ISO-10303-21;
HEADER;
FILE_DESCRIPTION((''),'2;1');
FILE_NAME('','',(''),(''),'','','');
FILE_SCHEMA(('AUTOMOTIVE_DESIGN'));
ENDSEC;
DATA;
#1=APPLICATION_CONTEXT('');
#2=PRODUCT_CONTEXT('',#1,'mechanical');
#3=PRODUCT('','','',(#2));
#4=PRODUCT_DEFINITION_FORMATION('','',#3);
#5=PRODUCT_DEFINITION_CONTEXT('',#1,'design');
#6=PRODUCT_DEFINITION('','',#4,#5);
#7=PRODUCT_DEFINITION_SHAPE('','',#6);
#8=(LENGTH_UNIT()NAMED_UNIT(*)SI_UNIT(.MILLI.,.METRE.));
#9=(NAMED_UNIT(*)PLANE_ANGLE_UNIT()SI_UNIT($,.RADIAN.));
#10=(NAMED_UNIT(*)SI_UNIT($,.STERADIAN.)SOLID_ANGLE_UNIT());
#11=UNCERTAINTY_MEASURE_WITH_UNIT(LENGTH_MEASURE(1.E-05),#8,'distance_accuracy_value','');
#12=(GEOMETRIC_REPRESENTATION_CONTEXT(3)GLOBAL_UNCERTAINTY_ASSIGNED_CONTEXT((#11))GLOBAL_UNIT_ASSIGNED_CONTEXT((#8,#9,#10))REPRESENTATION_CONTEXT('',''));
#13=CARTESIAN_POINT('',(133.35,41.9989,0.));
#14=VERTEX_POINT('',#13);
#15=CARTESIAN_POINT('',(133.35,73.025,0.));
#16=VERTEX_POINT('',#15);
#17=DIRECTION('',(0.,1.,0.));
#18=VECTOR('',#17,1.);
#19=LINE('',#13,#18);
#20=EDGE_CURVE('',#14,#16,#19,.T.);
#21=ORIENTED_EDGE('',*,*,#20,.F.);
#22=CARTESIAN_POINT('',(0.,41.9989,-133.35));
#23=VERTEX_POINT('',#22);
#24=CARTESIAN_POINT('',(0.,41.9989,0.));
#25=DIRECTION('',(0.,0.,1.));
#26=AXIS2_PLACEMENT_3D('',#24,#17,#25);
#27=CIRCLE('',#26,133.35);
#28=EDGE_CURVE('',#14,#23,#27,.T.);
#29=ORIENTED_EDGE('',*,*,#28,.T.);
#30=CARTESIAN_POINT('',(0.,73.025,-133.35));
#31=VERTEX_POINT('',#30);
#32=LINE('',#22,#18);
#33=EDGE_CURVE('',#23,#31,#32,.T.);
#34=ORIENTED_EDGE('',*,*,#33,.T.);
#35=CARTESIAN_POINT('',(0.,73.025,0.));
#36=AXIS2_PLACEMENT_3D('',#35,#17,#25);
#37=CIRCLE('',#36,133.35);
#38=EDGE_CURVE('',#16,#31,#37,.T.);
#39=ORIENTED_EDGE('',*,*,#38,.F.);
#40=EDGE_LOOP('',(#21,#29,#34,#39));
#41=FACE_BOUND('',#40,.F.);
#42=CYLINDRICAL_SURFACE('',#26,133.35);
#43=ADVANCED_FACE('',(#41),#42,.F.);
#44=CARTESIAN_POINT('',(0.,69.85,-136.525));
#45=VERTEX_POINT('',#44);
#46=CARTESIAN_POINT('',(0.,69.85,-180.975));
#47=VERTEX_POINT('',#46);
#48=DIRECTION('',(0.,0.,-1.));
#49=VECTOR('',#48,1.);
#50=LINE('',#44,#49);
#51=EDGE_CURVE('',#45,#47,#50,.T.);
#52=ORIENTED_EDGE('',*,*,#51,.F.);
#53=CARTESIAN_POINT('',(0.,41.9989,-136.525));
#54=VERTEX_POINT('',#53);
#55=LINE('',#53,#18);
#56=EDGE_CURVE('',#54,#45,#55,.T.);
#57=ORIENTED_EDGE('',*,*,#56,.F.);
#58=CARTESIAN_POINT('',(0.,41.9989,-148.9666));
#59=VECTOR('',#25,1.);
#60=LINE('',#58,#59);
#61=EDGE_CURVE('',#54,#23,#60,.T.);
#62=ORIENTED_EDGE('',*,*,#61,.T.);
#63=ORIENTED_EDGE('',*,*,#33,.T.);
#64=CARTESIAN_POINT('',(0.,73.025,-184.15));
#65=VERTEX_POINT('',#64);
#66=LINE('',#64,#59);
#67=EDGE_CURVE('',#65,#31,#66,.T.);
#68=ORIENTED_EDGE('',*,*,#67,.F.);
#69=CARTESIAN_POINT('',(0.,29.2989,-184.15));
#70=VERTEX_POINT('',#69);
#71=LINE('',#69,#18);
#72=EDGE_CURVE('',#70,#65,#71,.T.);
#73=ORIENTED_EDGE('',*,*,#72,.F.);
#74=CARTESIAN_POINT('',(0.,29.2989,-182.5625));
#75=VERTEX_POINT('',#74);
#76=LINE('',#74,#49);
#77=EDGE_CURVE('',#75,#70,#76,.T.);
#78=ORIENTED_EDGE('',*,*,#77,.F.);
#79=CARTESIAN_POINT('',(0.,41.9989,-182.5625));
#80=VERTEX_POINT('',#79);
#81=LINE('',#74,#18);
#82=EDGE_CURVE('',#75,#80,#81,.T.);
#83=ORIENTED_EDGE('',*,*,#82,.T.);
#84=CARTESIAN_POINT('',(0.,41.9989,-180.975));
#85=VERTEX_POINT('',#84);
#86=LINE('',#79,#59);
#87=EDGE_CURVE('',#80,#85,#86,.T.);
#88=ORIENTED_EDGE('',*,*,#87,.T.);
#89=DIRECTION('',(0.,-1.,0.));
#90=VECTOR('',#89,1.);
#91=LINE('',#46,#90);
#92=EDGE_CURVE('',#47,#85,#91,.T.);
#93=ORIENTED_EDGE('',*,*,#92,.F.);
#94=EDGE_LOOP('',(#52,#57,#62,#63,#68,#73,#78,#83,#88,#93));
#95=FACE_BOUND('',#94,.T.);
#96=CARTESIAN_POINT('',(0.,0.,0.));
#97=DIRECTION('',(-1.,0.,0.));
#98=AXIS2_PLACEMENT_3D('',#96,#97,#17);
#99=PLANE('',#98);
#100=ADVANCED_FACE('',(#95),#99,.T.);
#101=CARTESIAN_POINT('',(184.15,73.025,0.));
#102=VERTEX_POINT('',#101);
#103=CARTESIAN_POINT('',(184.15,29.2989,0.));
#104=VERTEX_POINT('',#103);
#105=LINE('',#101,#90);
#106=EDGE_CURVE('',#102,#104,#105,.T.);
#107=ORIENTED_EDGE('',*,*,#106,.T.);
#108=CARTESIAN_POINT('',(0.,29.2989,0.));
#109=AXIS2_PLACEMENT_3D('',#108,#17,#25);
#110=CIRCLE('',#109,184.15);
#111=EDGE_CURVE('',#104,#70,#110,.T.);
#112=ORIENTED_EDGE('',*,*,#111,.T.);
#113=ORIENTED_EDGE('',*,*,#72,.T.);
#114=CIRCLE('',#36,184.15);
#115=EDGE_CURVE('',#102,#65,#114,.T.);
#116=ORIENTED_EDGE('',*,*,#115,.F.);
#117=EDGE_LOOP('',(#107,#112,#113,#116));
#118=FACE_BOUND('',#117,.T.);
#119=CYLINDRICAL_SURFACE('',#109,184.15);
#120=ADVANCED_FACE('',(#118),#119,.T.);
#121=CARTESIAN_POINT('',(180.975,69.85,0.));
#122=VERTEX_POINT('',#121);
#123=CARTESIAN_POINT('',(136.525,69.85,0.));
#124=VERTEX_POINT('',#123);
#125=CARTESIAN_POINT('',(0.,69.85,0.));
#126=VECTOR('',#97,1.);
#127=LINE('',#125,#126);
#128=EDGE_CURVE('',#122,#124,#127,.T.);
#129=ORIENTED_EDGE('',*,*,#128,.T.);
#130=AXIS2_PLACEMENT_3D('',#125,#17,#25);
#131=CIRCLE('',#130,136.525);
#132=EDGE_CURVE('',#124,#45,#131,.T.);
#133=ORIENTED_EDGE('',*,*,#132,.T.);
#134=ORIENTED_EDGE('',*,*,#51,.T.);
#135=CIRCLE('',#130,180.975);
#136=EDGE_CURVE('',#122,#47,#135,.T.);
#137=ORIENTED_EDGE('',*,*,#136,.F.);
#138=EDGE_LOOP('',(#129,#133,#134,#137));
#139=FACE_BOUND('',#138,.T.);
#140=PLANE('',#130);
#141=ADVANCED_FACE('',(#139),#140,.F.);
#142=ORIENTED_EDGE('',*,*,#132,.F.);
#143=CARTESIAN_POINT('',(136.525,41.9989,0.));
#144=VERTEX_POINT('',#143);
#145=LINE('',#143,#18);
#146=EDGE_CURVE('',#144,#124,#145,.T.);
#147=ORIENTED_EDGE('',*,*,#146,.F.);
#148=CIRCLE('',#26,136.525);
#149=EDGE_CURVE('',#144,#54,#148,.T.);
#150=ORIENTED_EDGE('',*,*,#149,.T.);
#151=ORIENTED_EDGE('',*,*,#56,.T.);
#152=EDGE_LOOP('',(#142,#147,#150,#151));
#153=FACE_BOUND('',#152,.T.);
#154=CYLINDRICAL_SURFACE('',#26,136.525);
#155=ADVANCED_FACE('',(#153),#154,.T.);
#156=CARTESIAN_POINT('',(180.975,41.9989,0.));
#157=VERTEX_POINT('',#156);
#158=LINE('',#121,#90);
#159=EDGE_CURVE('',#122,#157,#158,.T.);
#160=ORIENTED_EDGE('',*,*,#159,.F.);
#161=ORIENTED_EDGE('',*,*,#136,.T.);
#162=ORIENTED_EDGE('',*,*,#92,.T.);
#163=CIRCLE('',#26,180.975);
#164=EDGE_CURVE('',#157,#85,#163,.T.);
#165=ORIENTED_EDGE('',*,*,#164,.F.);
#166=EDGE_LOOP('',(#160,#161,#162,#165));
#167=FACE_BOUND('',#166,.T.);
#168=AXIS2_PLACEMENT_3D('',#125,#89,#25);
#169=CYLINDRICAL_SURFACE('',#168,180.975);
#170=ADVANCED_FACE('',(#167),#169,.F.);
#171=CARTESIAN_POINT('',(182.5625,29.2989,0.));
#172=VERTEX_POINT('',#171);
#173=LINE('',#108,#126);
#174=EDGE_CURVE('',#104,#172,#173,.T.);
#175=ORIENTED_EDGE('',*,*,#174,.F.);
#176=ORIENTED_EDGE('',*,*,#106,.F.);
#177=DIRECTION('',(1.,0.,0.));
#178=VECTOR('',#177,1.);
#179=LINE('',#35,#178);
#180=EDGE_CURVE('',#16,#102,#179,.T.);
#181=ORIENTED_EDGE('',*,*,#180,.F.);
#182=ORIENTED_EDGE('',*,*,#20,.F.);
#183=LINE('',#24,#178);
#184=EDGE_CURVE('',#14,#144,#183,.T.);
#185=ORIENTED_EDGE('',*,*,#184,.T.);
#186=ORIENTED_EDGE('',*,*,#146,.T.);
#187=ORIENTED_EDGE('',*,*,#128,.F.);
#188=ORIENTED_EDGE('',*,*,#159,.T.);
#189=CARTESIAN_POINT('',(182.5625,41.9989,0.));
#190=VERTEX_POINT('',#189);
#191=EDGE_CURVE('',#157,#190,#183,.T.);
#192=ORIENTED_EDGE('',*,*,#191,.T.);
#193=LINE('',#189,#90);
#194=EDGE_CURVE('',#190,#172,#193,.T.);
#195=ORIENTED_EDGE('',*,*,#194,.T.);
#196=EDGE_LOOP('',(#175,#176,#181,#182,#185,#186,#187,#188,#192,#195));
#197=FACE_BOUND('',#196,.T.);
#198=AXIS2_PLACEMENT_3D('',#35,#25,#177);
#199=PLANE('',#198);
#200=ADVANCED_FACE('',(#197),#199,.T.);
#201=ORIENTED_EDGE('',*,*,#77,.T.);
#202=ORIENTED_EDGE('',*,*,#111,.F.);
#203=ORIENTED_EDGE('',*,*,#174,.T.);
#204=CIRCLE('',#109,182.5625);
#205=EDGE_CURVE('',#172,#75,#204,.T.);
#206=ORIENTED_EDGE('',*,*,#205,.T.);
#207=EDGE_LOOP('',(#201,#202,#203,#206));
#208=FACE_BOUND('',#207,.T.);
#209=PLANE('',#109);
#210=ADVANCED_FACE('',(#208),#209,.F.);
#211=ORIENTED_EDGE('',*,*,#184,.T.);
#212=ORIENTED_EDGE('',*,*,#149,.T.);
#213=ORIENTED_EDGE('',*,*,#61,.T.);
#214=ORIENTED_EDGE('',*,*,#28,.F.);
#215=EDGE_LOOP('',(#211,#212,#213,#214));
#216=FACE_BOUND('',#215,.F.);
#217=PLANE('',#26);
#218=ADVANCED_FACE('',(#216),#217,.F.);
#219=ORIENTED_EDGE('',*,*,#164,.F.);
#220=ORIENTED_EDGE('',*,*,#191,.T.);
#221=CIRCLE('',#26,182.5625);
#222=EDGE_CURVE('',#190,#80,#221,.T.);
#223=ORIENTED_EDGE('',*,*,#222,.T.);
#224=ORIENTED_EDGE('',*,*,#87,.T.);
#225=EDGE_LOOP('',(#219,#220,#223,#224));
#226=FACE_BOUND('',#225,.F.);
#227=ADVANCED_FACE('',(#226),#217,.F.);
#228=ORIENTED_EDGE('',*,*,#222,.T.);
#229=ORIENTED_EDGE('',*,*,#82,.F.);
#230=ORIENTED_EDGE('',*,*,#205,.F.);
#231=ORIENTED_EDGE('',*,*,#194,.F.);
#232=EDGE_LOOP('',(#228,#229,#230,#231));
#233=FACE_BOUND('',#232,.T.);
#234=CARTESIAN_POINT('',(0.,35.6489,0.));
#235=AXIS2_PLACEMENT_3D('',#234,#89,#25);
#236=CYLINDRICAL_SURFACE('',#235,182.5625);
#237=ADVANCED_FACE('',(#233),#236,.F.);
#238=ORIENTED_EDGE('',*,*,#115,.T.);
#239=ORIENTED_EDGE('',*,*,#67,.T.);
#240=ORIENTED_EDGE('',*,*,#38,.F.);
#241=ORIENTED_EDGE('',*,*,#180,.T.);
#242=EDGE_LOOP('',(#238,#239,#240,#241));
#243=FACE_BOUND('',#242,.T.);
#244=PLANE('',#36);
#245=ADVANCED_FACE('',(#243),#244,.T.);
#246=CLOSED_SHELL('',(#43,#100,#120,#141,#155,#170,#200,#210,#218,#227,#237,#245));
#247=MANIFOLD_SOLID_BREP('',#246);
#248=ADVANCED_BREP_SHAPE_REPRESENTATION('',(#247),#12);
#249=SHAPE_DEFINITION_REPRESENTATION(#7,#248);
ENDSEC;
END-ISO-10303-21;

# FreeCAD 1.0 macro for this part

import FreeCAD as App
import Part
import Sketcher

V = App.Vector
Q = App.Units.Quantity

doc = App.newDocument("Part")
body = doc.addObject("PartDesign::Body", "Body")

# Sketch on YZ plane
sketch1 = doc.addObject("Sketcher::SketchObject", "Sketch")
body.addObject(sketch1)
sketch1.AttachmentSupport = (doc.YZ_Plane, [""])
sketch1.MapMode = "FlatFace"
sketch1.addGeometry(Part.LineSegment(V(73, 184.2, 0), V(29.3, 184.2, 0)), False)
sketch1.addGeometry(Part.LineSegment(V(29.3, 184.2, 0), V(29.3, 182.6, 0)), False)
sketch1.addGeometry(Part.LineSegment(V(29.3, 182.6, 0), V(42, 182.6, 0)), False)
sketch1.addGeometry(Part.LineSegment(V(42, 182.6, 0), V(42, 181, 0)), False)
sketch1.addGeometry(Part.LineSegment(V(42, 181, 0), V(69.8, 181, 0)), False)
sketch1.addGeometry(Part.LineSegment(V(69.8, 181, 0), V(69.8, 136.5, 0)), False)
sketch1.addGeometry(Part.LineSegment(V(69.8, 136.5, 0), V(42, 136.5, 0)), False)
sketch1.addGeometry(Part.LineSegment(V(42, 136.5, 0), V(42, 133.3, 0)), False)
sketch1.addGeometry(Part.LineSegment(V(42, 133.3, 0), V(73, 133.3, 0)), False)
sketch1.addGeometry(Part.LineSegment(V(73, 133.3, 0), V(73, 184.2, 0)), False)
sketch1.addConstraint(Sketcher.Constraint("Coincident", 0, 2, 1, 1))
sketch1.addConstraint(Sketcher.Constraint("Coincident", 1, 2, 2, 1))
sketch1.addConstraint(Sketcher.Constraint("Coincident", 2, 2, 3, 1))
sketch1.addConstraint(Sketcher.Constraint("Coincident", 3, 2, 4, 1))
sketch1.addConstraint(Sketcher.Constraint("Coincident", 4, 2, 5, 1))
sketch1.addConstraint(Sketcher.Constraint("Coincident", 5, 2, 6, 1))
sketch1.addConstraint(Sketcher.Constraint("Coincident", 6, 2, 7, 1))
sketch1.addConstraint(Sketcher.Constraint("Coincident", 7, 2, 8, 1))
sketch1.addConstraint(Sketcher.Constraint("Coincident", 8, 2, 9, 1))
sketch1.addConstraint(Sketcher.Constraint("Coincident", 9, 2, 0, 1))
sketch1.addConstraint(Sketcher.Constraint("Horizontal", 0))
sketch1.addConstraint(Sketcher.Constraint("Vertical", 1))
sketch1.addConstraint(Sketcher.Constraint("Horizontal", 2))
sketch1.addConstraint(Sketcher.Constraint("Vertical", 3))
sketch1.addConstraint(Sketcher.Constraint("Horizontal", 4))
sketch1.addConstraint(Sketcher.Constraint("Vertical", 5))
sketch1.addConstraint(Sketcher.Constraint("Horizontal", 6))
sketch1.addConstraint(Sketcher.Constraint("Vertical", 7))
sketch1.addConstraint(Sketcher.Constraint("Horizontal", 8))
sketch1.addConstraint(Sketcher.Constraint("Vertical", 9))
sketch1.addConstraint(Sketcher.Constraint("Vertical", 3, 2, 6, 2))
sketch1.addConstraint(Sketcher.Constraint("Equal", 1, 3))
sketch1.addConstraint(Sketcher.Constraint("DistanceY", 9, 1, 9, 2, Q("2 in")))
sketch1.addConstraint(Sketcher.Constraint("DistanceX", 2, 1, 2, 2, Q("0.5 in")))
sketch1.addConstraint(Sketcher.Constraint("DistanceY", 1, 2, 1, 1, Q("0.0625 in")))
sketch1.addConstraint(Sketcher.Constraint("DistanceY", 7, 2, 7, 1, Q("0.125 in")))
sketch1.addConstraint(Sketcher.Constraint("DistanceY", -1, 1, 7, 2, Q("5.25 in")))
sketch1.addConstraint(Sketcher.Constraint("DistanceX", -1, 1, 8, 2, Q("2.875 in")))
sketch1.addConstraint(Sketcher.Constraint("DistanceX", 5, 2, 8, 2, Q("0.125 in")))
sketch1.addConstraint(Sketcher.Constraint("DistanceX", 0, 2, 0, 1, Q("1.7215 in")))
revolution = doc.addObject("PartDesign::Revolution", "Revolution")
body.addObject(revolution)
revolution.Profile = sketch1
revolution.ReferenceAxis = (sketch1, ["H_Axis"])
revolution.Angle = 180

# Sketch on XZ plane
sketch2 = doc.addObject("Sketcher::SketchObject", "Sketch001")
body.addObject(sketch2)
sketch2.AttachmentSupport = (doc.XZ_Plane, [""])
sketch2.MapMode = "FlatFace"
sketch2.AttachmentOffset = App.Placement(V(0, 0, -2.875 * 25.4), App.Rotation())
sketch2.addGeometry(Part.LineSegment(V(255, 0, 0), V(0, 0, 0)), False)
sketch2.addGeometry(Part.LineSegment(V(0, 0, 0), V(0, 193, 0)), False)
sketch2.addGeometry(Part.LineSegment(V(0, 193, 0), V(255, 193, 0)), False)
sketch2.addGeometry(Part.LineSegment(V(255, 193, 0), V(255, 0, 0)), False)
sketch2.addConstraint(Sketcher.Constraint("Coincident", 0, 2, 1, 1))
sketch2.addConstraint(Sketcher.Constraint("Coincident", 1, 2, 2, 1))
sketch2.addConstraint(Sketcher.Constraint("Coincident", 2, 2, 3, 1))
sketch2.addConstraint(Sketcher.Constraint("Coincident", 3, 2, 0, 1))
sketch2.addConstraint(Sketcher.Constraint("Horizontal", 0))
sketch2.addConstraint(Sketcher.Constraint("Vertical", 1))
sketch2.addConstraint(Sketcher.Constraint("Horizontal", 2))
sketch2.addConstraint(Sketcher.Constraint("Vertical", 3))
sketch2.addConstraint(Sketcher.Constraint("Coincident", 0, 2, -1, 1))
sketch2.addConstraint(Sketcher.Constraint("DistanceX", 0, 2, 0, 1, Q("10.0412 in")))
sketch2.addConstraint(Sketcher.Constraint("DistanceY", 1, 1, 1, 2, Q("7.6168 in")))
pocket1 = doc.addObject("PartDesign::Pocket", "Pocket")
body.addObject(pocket1)
pocket1.Profile = sketch2
pocket1.Type = "ThroughAll"
pocket1.Reversed = True

doc.recompute()
